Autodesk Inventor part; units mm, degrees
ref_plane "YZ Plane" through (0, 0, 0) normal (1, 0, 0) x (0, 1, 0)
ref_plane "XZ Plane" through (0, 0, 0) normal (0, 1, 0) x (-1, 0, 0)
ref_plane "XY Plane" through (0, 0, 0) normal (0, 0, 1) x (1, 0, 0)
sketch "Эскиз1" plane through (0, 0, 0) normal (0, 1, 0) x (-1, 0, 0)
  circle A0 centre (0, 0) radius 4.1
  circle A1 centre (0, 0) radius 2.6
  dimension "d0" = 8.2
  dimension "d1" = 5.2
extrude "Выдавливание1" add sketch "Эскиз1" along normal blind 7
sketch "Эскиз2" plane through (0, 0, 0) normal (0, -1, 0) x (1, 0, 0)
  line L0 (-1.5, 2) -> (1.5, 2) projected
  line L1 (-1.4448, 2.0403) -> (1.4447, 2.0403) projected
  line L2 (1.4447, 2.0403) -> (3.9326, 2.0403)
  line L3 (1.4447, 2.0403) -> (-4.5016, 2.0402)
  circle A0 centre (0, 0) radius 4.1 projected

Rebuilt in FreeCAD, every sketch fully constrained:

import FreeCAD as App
import Part
import Sketcher
from FreeCAD import Vector

doc = App.newDocument("Part")
body = doc.addObject("PartDesign::Body", "Body")

sketch1 = body.newObject("Sketcher::SketchObject", "Sketch")
sketch1.AttachmentSupport = (doc.getObject("XZ_Plane"), [""])
sketch1.MapMode = "FlatFace"
sketch1.addGeometry(Part.Circle(Vector(0, 0, 0), Vector(0, 0, 1), 4.1), False)
sketch1.addGeometry(Part.Circle(Vector(0, 0, 0), Vector(0, 0, 1), 2.6), False)
sketch1.addConstraint(Sketcher.Constraint("Coincident", 0, 3, -1, 1))
sketch1.addConstraint(Sketcher.Constraint("Coincident", 1, 3, -1, 1))
sketch1.addConstraint(Sketcher.Constraint("Diameter", 0, 8.2))
sketch1.addConstraint(Sketcher.Constraint("Diameter", 1, 5.2))
pad1 = body.newObject("PartDesign::Pad", "Pad")
pad1.Profile = sketch1
pad1.Length = 7
pad1.Reversed = True

doc.recompute()
